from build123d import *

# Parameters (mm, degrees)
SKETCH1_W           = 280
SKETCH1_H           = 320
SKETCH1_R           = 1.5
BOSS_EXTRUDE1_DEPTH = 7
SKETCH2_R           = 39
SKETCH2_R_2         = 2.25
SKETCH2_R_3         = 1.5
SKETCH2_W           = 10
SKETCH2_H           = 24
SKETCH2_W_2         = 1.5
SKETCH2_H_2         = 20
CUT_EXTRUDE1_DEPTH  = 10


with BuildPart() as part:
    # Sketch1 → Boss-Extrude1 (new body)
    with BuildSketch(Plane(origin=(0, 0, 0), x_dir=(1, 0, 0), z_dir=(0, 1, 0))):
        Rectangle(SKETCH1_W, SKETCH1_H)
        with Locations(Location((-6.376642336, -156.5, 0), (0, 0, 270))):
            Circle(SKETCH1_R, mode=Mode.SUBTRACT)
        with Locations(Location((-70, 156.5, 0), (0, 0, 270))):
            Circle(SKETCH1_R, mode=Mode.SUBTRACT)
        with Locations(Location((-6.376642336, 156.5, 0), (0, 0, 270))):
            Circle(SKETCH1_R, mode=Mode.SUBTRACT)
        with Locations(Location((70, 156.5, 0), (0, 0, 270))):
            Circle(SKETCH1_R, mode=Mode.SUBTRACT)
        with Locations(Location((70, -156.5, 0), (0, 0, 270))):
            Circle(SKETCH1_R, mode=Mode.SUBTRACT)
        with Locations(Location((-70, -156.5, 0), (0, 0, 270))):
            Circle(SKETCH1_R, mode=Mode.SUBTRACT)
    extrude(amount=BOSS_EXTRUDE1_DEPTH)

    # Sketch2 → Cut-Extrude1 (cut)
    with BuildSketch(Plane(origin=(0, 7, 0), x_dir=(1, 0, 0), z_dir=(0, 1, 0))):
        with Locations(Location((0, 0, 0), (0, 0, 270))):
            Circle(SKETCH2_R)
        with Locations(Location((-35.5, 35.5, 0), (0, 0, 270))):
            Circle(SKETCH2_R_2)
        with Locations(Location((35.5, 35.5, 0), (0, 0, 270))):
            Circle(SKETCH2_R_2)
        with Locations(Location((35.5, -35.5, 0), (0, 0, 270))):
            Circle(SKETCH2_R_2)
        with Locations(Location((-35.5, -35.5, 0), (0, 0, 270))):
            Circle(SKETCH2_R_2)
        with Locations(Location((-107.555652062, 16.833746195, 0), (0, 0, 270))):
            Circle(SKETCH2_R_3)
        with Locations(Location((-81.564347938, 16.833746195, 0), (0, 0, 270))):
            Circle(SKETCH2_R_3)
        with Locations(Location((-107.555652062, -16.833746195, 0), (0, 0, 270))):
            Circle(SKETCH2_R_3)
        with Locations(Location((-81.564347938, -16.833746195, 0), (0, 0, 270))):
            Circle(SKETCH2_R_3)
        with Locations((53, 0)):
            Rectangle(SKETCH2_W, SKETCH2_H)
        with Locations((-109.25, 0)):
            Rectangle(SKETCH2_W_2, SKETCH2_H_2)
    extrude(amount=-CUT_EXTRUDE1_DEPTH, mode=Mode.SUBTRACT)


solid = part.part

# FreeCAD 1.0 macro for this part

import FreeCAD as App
import Part
import Sketcher

V = App.Vector

doc = App.newDocument("Part")
params = doc.addObject("Spreadsheet::Sheet", "Params")
for row, (alias, value) in enumerate([
    ("sketch1_diameter", "3 mm"),
    ("sketch1_width", "280 mm"),
    ("sketch1_height", "320 mm"),
    ("pad1_length", "7 mm"),
    ("sketch2_diameter", "78 mm"),
    ("sketch2_diameter2", "3 mm"),
    ("sketch2_diameter3", "4.5 mm"),
    ("sketch2_width", "10 mm"),
    ("sketch2_height", "24 mm"),
    ("pocket1_length", "10 mm"),
], start=1):
    params.set(f"A{row}", alias)
    params.set(f"B{row}", "=" + value)
    params.setAlias(f"B{row}", alias)

body = doc.addObject("PartDesign::Body", "Body")

# Sketch on XZ plane
sketch1 = body.newObject("Sketcher::SketchObject", "Sketch")
sketch1.AttachmentSupport = (doc.getObject("XZ_Plane"), [""])
sketch1.MapMode = "FlatFace"
sketch1.addGeometry(Part.LineSegment(V(-140, -160, 0), V(-140, 160, 0)), False)
sketch1.addGeometry(Part.LineSegment(V(-140, 160, 0), V(140, 160, 0)), False)
sketch1.addGeometry(Part.LineSegment(V(140, 160, 0), V(140, -160, 0)), False)
sketch1.addGeometry(Part.LineSegment(V(140, -160, 0), V(-140, -160, 0)), False)
sketch1.addGeometry(Part.Circle(V(-70, 156.5, 0), V(0, 0, 1), 1.5), False)
sketch1.addGeometry(Part.Circle(V(-6.4, 156.5, 0), V(0, 0, 1), 1.5), False)
sketch1.addGeometry(Part.Circle(V(70, 156.5, 0), V(0, 0, 1), 1.5), False)
sketch1.addGeometry(Part.Circle(V(-70, -156.5, 0), V(0, 0, 1), 1.5), False)
sketch1.addGeometry(Part.Circle(V(-6.4, -156.5, 0), V(0, 0, 1), 1.5), False)
sketch1.addGeometry(Part.Circle(V(70, -156.5, 0), V(0, 0, 1), 1.5), False)
sketch1.addConstraint(Sketcher.Constraint("Coincident", 0, 2, 1, 1))
sketch1.addConstraint(Sketcher.Constraint("Coincident", 1, 2, 2, 1))
sketch1.addConstraint(Sketcher.Constraint("Coincident", 2, 2, 3, 1))
sketch1.addConstraint(Sketcher.Constraint("Coincident", 3, 2, 0, 1))
sketch1.addConstraint(Sketcher.Constraint("Vertical", 0))
sketch1.addConstraint(Sketcher.Constraint("Horizontal", 1))
sketch1.addConstraint(Sketcher.Constraint("Vertical", 2))
sketch1.addConstraint(Sketcher.Constraint("Horizontal", 3))
sketch1.addConstraint(Sketcher.Constraint("Equal", 4, 5))
sketch1.addConstraint(Sketcher.Constraint("Equal", 5, 6))
sketch1.addConstraint(Sketcher.Constraint("Equal", 6, 7))
sketch1.addConstraint(Sketcher.Constraint("Equal", 7, 8))
sketch1.addConstraint(Sketcher.Constraint("Equal", 8, 9))
sketch1.addConstraint(Sketcher.Constraint("Symmetric", 6, 3, 7, 3, -1, 1))
sketch1.addConstraint(Sketcher.Constraint("Symmetric", 4, 3, 9, 3, -1, 1))
sketch1.addConstraint(Sketcher.Constraint("Symmetric", 0, 2, 2, 2, -1, 1))
sketch1.addConstraint(Sketcher.Constraint("Symmetric", 4, 3, 6, 3, -2))
sketch1.addConstraint(Sketcher.Constraint("Symmetric", 5, 3, 8, 3, -1))
sketch1.addConstraint(Sketcher.Constraint("Horizontal", 4, 3, 5, 3))
sketch1.addConstraint(Sketcher.Constraint("Diameter", 4, 3.0))
sketch1.addConstraint(Sketcher.Constraint("DistanceX", 1, 1, 1, 2, 280.0))
sketch1.addConstraint(Sketcher.Constraint("DistanceY", 0, 1, 0, 2, 320.0))
sketch1.addConstraint(Sketcher.Constraint("DistanceX", 4, 3, -1, 1, 70.0))
sketch1.addConstraint(Sketcher.Constraint("DistanceY", 7, 3, 4, 3, 313.0))
sketch1.addConstraint(Sketcher.Constraint("DistanceX", 5, 3, -1, 1, 6.376642))
sketch1.setExpression("Constraints[19]", "Params.sketch1_diameter")
sketch1.setExpression("Constraints[20]", "Params.sketch1_width")
sketch1.setExpression("Constraints[21]", "Params.sketch1_height")
pad1 = body.newObject("PartDesign::Pad", "Pad")
pad1.Profile = sketch1
pad1.setExpression("Length", "Params.pad1_length")
pad1.Reversed = True

# Sketch on XZ plane
sketch2 = body.newObject("Sketcher::SketchObject", "Sketch001")
sketch2.AttachmentSupport = (doc.getObject("XZ_Plane"), [""])
sketch2.MapMode = "FlatFace"
sketch2.AttachmentOffset = App.Placement(V(0, 0, -7), App.Rotation())
sketch2.addGeometry(Part.Circle(V(0, 0, 0), V(0, 0, 1), 39), False)
sketch2.addGeometry(Part.Circle(V(-35.5, -35.5, 0), V(0, 0, 1), 2.2), False)
sketch2.addGeometry(Part.Circle(V(35.5, -35.5, 0), V(0, 0, 1), 2.2), False)
sketch2.addGeometry(Part.Circle(V(35.5, 35.5, 0), V(0, 0, 1), 2.2), False)
sketch2.addGeometry(Part.Circle(V(-35.5, 35.5, 0), V(0, 0, 1), 2.2), False)
sketch2.addGeometry(Part.Circle(V(-107.6, -16.8, 0), V(0, 0, 1), 1.5), False)
sketch2.addGeometry(Part.Circle(V(-81.6, -16.8, 0), V(0, 0, 1), 1.5), False)
sketch2.addGeometry(Part.Circle(V(-107.6, 16.8, 0), V(0, 0, 1), 1.5), False)
sketch2.addGeometry(Part.Circle(V(-81.6, 16.8, 0), V(0, 0, 1), 1.5), False)
sketch2.addGeometry(Part.LineSegment(V(48, -12, 0), V(48, 12, 0)), False)
sketch2.addGeometry(Part.LineSegment(V(48, 12, 0), V(58, 12, 0)), False)
sketch2.addGeometry(Part.LineSegment(V(58, 12, 0), V(58, -12, 0)), False)
sketch2.addGeometry(Part.LineSegment(V(58, -12, 0), V(48, -12, 0)), False)
sketch2.addGeometry(Part.LineSegment(V(-110, -10, 0), V(-110, 10, 0)), False)
sketch2.addGeometry(Part.LineSegment(V(-110, 10, 0), V(-108.5, 10, 0)), False)
sketch2.addGeometry(Part.LineSegment(V(-108.5, 10, 0), V(-108.5, -10, 0)), False)
sketch2.addGeometry(Part.LineSegment(V(-108.5, -10, 0), V(-110, -10, 0)), False)
sketch2.addConstraint(Sketcher.Constraint("Coincident", 9, 2, 10, 1))
sketch2.addConstraint(Sketcher.Constraint("Coincident", 10, 2, 11, 1))
sketch2.addConstraint(Sketcher.Constraint("Coincident", 11, 2, 12, 1))
sketch2.addConstraint(Sketcher.Constraint("Coincident", 12, 2, 9, 1))
sketch2.addConstraint(Sketcher.Constraint("Coincident", 13, 2, 14, 1))
sketch2.addConstraint(Sketcher.Constraint("Coincident", 14, 2, 15, 1))
sketch2.addConstraint(Sketcher.Constraint("Coincident", 15, 2, 16, 1))
sketch2.addConstraint(Sketcher.Constraint("Coincident", 16, 2, 13, 1))
sketch2.addConstraint(Sketcher.Constraint("Vertical", 9))
sketch2.addConstraint(Sketcher.Constraint("Horizontal", 10))
sketch2.addConstraint(Sketcher.Constraint("Vertical", 11))
sketch2.addConstraint(Sketcher.Constraint("Horizontal", 12))
sketch2.addConstraint(Sketcher.Constraint("Vertical", 13))
sketch2.addConstraint(Sketcher.Constraint("Horizontal", 14))
sketch2.addConstraint(Sketcher.Constraint("Vertical", 15))
sketch2.addConstraint(Sketcher.Constraint("Horizontal", 16))
sketch2.addConstraint(Sketcher.Constraint("Coincident", 0, 3, -1, 1))
sketch2.addConstraint(Sketcher.Constraint("Equal", 1, 2))
sketch2.addConstraint(Sketcher.Constraint("Equal", 2, 3))
sketch2.addConstraint(Sketcher.Constraint("Equal", 3, 4))
sketch2.addConstraint(Sketcher.Constraint("Equal", 5, 6))
sketch2.addConstraint(Sketcher.Constraint("Equal", 6, 7))
sketch2.addConstraint(Sketcher.Constraint("Equal", 7, 8))
sketch2.addConstraint(Sketcher.Constraint("Symmetric", 1, 3, 3, 3, -1, 1))
sketch2.addConstraint(Sketcher.Constraint("Symmetric", 2, 3, 4, 3, -1, 1))
sketch2.addConstraint(Sketcher.Constraint("Symmetric", 1, 3, 2, 3, -2))
sketch2.addConstraint(Sketcher.Constraint("Symmetric", 5, 3, 7, 3, -1))
sketch2.addConstraint(Sketcher.Constraint("Symmetric", 6, 3, 8, 3, -1))
sketch2.addConstraint(Sketcher.Constraint("Horizontal", 5, 3, 6, 3))
sketch2.addConstraint(Sketcher.Constraint("Diameter", 0, 78.0))
sketch2.addConstraint(Sketcher.Constraint("Diameter", 5, 3.0))
sketch2.addConstraint(Sketcher.Constraint("Diameter", 1, 4.5))
sketch2.addConstraint(Sketcher.Constraint("DistanceX", 10, 1, 10, 2, 10.0))
sketch2.addConstraint(Sketcher.Constraint("DistanceY", 9, 1, 9, 2, 24.0))
sketch2.addConstraint(Sketcher.Constraint("DistanceY", 13, 1, 13, 2, 20.0))
sketch2.addConstraint(Sketcher.Constraint("DistanceX", 14, 1, 14, 2, 1.5))
sketch2.addConstraint(Sketcher.Constraint("DistanceX", -1, 1, 9, 2, 48.0))
sketch2.addConstraint(Sketcher.Constraint("DistanceY", -1, 1, 9, 2, 12.0))
sketch2.addConstraint(Sketcher.Constraint("DistanceX", 13, 2, -1, 1, 110.0))
sketch2.addConstraint(Sketcher.Constraint("DistanceY", -1, 1, 13, 2, 10.0))
sketch2.addConstraint(Sketcher.Constraint("DistanceX", 1, 3, 2, 3, 71.0))
sketch2.addConstraint(Sketcher.Constraint("DistanceY", 2, 3, 3, 3, 71.0))
sketch2.addConstraint(Sketcher.Constraint("DistanceX", 5, 3, -1, 1, 107.555652))
sketch2.addConstraint(Sketcher.Constraint("DistanceY", 5, 3, -1, 1, 16.833746))
sketch2.addConstraint(Sketcher.Constraint("DistanceX", 6, 3, -1, 1, 81.564348))
sketch2.setExpression("Constraints[29]", "Params.sketch2_diameter")
sketch2.setExpression("Constraints[30]", "Params.sketch2_diameter2")
sketch2.setExpression("Constraints[31]", "Params.sketch2_diameter3")
sketch2.setExpression("Constraints[32]", "Params.sketch2_width")
sketch2.setExpression("Constraints[33]", "Params.sketch2_height")
pocket1 = body.newObject("PartDesign::Pocket", "Pocket")
pocket1.Profile = sketch2
pocket1.setExpression("Length", "Params.pocket1_length")
pocket1.Reversed = True

doc.recompute()
